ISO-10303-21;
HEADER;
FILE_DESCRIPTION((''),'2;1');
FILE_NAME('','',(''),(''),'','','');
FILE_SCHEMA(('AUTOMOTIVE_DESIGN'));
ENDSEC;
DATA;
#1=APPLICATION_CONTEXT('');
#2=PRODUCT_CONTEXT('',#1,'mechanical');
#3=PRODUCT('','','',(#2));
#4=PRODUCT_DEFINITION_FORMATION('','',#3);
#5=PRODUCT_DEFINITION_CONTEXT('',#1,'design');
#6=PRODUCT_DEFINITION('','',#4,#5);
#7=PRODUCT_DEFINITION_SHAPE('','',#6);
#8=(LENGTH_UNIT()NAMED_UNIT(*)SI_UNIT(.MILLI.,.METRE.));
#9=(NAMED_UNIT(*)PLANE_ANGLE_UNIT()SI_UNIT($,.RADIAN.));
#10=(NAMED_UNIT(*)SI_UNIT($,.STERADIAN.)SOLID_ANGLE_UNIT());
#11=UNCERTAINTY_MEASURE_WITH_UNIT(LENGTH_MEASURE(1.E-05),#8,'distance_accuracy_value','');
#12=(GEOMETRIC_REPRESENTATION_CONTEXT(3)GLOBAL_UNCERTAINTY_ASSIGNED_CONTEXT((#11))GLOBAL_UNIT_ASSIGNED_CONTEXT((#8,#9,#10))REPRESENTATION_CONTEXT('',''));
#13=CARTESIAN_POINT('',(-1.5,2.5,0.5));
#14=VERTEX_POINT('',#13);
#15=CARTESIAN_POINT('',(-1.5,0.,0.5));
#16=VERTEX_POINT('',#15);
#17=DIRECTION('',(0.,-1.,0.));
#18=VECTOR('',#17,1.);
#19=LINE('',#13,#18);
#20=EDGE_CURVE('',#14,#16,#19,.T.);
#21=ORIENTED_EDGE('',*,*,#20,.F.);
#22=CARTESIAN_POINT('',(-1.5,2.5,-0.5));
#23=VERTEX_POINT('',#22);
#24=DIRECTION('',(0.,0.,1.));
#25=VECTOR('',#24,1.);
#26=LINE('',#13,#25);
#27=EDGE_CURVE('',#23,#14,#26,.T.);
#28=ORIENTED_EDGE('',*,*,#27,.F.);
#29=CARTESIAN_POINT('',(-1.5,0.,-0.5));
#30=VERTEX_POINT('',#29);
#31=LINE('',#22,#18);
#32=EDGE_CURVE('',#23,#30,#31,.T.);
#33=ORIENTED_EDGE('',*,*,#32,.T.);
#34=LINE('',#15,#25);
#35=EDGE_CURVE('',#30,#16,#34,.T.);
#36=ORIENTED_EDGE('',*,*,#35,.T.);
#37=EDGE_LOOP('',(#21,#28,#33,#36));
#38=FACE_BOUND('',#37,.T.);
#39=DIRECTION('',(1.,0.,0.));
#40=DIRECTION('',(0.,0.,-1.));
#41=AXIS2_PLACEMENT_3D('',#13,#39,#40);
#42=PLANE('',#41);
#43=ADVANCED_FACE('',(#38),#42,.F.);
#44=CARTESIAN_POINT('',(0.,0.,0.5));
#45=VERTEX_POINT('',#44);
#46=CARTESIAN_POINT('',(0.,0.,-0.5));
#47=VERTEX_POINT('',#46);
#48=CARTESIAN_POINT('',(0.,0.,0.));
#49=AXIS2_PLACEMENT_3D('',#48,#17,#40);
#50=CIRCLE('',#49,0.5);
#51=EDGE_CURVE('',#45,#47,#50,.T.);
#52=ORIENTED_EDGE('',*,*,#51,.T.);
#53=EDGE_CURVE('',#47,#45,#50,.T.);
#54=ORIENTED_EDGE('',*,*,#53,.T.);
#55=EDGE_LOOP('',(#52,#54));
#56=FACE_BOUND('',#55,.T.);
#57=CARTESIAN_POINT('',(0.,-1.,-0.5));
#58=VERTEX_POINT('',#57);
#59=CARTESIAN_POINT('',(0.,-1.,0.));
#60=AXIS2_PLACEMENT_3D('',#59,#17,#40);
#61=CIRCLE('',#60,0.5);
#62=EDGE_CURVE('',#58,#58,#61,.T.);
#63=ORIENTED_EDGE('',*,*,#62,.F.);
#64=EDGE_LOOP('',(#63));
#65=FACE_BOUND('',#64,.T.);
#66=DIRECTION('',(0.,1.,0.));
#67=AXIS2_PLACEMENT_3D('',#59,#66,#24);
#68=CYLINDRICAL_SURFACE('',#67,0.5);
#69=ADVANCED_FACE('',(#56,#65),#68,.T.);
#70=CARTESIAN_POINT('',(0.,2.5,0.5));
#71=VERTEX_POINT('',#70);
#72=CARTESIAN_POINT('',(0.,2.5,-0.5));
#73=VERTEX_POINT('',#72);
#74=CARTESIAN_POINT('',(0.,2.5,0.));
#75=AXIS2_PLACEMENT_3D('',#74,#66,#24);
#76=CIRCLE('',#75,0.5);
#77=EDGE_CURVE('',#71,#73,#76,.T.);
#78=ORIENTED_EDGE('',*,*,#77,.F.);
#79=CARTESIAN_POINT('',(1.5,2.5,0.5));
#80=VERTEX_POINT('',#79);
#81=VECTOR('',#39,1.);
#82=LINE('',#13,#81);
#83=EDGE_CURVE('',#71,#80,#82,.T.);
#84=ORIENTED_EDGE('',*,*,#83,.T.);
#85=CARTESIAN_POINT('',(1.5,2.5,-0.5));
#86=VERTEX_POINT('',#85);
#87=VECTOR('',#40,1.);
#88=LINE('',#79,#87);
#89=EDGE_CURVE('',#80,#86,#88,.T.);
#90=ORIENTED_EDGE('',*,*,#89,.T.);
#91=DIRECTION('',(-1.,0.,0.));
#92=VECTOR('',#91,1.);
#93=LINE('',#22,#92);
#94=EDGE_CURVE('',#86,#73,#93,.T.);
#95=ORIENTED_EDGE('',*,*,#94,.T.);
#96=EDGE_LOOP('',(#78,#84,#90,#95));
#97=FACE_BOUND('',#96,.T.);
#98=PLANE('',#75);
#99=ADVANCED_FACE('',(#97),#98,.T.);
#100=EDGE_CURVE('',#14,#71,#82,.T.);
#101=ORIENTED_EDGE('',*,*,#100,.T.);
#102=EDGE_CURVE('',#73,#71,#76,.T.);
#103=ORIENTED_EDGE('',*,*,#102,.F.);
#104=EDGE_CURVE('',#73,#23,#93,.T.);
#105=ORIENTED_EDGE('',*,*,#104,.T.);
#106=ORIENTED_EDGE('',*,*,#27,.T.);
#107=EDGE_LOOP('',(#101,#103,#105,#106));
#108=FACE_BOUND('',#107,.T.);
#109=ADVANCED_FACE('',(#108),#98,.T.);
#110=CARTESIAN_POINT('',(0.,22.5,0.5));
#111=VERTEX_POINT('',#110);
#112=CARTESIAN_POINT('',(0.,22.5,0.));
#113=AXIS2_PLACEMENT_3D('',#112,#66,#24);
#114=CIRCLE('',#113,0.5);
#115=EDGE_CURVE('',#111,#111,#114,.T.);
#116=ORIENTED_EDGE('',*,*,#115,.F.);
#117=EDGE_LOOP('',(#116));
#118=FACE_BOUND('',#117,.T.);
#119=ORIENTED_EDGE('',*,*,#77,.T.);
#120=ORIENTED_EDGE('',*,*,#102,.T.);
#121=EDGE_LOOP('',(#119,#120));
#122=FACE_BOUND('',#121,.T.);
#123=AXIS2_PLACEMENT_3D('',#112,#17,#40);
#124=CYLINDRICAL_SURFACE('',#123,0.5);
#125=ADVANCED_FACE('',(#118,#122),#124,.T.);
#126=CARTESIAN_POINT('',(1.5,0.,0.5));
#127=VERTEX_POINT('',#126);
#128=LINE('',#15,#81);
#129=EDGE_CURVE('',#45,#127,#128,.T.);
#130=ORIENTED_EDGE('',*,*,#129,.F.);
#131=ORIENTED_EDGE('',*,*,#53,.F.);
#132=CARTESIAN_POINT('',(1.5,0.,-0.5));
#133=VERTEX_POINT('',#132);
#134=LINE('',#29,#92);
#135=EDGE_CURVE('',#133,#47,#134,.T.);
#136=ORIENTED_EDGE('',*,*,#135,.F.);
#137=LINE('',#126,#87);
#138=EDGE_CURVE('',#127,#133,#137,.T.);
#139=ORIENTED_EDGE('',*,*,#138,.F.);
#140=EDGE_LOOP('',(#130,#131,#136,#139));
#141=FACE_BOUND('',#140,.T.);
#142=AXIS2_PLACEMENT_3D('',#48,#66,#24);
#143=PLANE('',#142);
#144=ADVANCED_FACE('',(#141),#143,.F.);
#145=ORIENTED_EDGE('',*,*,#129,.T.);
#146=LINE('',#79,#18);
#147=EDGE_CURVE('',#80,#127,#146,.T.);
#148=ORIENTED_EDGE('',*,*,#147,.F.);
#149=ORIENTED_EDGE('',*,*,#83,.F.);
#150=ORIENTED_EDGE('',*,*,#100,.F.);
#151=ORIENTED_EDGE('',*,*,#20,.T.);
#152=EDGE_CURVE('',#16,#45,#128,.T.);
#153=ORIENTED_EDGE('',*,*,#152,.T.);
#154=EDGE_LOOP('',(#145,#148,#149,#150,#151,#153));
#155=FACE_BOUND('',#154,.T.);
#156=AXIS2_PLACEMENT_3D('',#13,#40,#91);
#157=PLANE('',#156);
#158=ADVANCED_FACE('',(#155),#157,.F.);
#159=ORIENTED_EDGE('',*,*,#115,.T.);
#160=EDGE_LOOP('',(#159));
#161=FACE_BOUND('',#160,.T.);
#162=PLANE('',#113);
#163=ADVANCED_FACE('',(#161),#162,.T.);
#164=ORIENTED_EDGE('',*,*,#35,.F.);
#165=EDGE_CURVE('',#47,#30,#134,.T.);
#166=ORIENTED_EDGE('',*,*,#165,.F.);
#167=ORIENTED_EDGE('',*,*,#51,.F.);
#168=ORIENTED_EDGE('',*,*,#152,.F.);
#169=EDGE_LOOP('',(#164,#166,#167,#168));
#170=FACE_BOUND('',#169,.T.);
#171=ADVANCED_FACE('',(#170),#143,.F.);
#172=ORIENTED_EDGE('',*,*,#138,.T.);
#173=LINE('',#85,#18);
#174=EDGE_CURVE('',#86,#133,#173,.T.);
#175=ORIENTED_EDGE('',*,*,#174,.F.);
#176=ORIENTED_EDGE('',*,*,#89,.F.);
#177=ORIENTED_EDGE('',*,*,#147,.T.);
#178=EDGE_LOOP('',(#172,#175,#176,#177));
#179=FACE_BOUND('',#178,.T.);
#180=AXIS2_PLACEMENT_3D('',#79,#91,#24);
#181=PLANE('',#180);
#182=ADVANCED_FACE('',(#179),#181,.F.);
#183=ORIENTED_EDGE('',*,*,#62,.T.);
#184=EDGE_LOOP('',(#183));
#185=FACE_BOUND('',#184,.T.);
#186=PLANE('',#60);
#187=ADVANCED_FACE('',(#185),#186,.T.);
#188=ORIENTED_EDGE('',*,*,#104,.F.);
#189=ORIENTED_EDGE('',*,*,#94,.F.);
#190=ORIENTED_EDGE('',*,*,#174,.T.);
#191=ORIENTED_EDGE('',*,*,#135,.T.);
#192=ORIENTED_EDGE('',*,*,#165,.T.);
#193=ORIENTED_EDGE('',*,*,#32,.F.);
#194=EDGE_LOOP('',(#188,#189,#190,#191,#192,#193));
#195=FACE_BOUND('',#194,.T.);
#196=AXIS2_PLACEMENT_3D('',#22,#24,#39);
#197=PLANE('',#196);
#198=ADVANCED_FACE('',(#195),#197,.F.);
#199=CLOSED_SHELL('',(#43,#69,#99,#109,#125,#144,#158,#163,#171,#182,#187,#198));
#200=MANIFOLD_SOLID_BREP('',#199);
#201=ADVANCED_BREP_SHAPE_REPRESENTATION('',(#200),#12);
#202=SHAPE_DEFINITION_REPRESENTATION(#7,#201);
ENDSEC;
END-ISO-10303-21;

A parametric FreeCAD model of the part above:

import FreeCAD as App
import Part
import Sketcher
Q = App.Units.Quantity


def add_polygon(sketch, points):
    """Adds a closed chain of lines whose ends are joined by coincident constraints."""
    first, n = sketch.GeometryCount, len(points)
    for a, b in zip(points, points[1:] + points[:1]):
        sketch.addGeometry(Part.LineSegment(App.Vector(*a, 0), App.Vector(*b, 0)), False)
    for i in range(n):
        sketch.addConstraint(Sketcher.Constraint("Coincident", first + i, 2, first + (i + 1) % n, 1))

doc = App.newDocument("Part")
body = doc.addObject("PartDesign::Body", "Body")

# Sketch on XZ plane
sketch1 = body.newObject("Sketcher::SketchObject", "Sketch")
sketch1.AttachmentSupport = (doc.getObject("XZ_Plane"), [""])
sketch1.MapMode = "FlatFace"
add_polygon(sketch1, [(-1.5, -0.5), (-1.5, 0.5), (1.5, 0.5), (1.5, -0.5)])  # lines 0-3
sketch1.addConstraint(Sketcher.Constraint("Vertical", 0))
sketch1.addConstraint(Sketcher.Constraint("Horizontal", 1))
sketch1.addConstraint(Sketcher.Constraint("Vertical", 2))
sketch1.addConstraint(Sketcher.Constraint("Horizontal", 3))
sketch1.addConstraint(Sketcher.Constraint("Symmetric", 0, 2, 2, 2, -1, 1))
sketch1.addConstraint(Sketcher.Constraint("DistanceX", 1, 1, 1, 2, Q("3 mm")))
sketch1.addConstraint(Sketcher.Constraint("DistanceY", 0, 1, 0, 2, Q("1 mm")))
pad1 = body.newObject("PartDesign::Pad", "Pad")
pad1.Profile = sketch1
pad1.Length = 2.5
pad1.Reversed = True

# Sketch on XZ plane
sketch2 = body.newObject("Sketcher::SketchObject", "Sketch001")
sketch2.AttachmentSupport = (doc.getObject("XZ_Plane"), [""])
sketch2.MapMode = "FlatFace"
sketch2.AttachmentOffset = App.Placement(App.Vector(0, 0, -2.5), App.Rotation())
sketch2.addGeometry(Part.Circle(App.Vector(0, 0, 0), App.Vector(0, 0, 1), 0.5), False)
sketch2.addConstraint(Sketcher.Constraint("Coincident", 0, 3, -1, 1))
sketch2.addConstraint(Sketcher.Constraint("Diameter", 0, Q("1 mm")))
pad2 = body.newObject("PartDesign::Pad", "Pad001")
pad2.Profile = sketch2
pad2.Length = 20
pad2.Reversed = True

# Sketch on XZ plane
sketch3 = body.newObject("Sketcher::SketchObject", "Sketch002")
sketch3.AttachmentSupport = (doc.getObject("XZ_Plane"), [""])
sketch3.MapMode = "FlatFace"
sketch3.AttachmentOffset = App.Placement(App.Vector(0, 0, 1), App.Rotation())
sketch3.addGeometry(Part.Circle(App.Vector(0, 0, 0), App.Vector(0, 0, 1), 0.5), False)
sketch3.addConstraint(Sketcher.Constraint("Coincident", 0, 3, -1, 1))
sketch3.addConstraint(Sketcher.Constraint("Diameter", 0, Q("1 mm")))
pad3 = body.newObject("PartDesign::Pad", "Pad002")
pad3.Profile = sketch3
pad3.Length = 1
pad3.Reversed = True

doc.recompute()
